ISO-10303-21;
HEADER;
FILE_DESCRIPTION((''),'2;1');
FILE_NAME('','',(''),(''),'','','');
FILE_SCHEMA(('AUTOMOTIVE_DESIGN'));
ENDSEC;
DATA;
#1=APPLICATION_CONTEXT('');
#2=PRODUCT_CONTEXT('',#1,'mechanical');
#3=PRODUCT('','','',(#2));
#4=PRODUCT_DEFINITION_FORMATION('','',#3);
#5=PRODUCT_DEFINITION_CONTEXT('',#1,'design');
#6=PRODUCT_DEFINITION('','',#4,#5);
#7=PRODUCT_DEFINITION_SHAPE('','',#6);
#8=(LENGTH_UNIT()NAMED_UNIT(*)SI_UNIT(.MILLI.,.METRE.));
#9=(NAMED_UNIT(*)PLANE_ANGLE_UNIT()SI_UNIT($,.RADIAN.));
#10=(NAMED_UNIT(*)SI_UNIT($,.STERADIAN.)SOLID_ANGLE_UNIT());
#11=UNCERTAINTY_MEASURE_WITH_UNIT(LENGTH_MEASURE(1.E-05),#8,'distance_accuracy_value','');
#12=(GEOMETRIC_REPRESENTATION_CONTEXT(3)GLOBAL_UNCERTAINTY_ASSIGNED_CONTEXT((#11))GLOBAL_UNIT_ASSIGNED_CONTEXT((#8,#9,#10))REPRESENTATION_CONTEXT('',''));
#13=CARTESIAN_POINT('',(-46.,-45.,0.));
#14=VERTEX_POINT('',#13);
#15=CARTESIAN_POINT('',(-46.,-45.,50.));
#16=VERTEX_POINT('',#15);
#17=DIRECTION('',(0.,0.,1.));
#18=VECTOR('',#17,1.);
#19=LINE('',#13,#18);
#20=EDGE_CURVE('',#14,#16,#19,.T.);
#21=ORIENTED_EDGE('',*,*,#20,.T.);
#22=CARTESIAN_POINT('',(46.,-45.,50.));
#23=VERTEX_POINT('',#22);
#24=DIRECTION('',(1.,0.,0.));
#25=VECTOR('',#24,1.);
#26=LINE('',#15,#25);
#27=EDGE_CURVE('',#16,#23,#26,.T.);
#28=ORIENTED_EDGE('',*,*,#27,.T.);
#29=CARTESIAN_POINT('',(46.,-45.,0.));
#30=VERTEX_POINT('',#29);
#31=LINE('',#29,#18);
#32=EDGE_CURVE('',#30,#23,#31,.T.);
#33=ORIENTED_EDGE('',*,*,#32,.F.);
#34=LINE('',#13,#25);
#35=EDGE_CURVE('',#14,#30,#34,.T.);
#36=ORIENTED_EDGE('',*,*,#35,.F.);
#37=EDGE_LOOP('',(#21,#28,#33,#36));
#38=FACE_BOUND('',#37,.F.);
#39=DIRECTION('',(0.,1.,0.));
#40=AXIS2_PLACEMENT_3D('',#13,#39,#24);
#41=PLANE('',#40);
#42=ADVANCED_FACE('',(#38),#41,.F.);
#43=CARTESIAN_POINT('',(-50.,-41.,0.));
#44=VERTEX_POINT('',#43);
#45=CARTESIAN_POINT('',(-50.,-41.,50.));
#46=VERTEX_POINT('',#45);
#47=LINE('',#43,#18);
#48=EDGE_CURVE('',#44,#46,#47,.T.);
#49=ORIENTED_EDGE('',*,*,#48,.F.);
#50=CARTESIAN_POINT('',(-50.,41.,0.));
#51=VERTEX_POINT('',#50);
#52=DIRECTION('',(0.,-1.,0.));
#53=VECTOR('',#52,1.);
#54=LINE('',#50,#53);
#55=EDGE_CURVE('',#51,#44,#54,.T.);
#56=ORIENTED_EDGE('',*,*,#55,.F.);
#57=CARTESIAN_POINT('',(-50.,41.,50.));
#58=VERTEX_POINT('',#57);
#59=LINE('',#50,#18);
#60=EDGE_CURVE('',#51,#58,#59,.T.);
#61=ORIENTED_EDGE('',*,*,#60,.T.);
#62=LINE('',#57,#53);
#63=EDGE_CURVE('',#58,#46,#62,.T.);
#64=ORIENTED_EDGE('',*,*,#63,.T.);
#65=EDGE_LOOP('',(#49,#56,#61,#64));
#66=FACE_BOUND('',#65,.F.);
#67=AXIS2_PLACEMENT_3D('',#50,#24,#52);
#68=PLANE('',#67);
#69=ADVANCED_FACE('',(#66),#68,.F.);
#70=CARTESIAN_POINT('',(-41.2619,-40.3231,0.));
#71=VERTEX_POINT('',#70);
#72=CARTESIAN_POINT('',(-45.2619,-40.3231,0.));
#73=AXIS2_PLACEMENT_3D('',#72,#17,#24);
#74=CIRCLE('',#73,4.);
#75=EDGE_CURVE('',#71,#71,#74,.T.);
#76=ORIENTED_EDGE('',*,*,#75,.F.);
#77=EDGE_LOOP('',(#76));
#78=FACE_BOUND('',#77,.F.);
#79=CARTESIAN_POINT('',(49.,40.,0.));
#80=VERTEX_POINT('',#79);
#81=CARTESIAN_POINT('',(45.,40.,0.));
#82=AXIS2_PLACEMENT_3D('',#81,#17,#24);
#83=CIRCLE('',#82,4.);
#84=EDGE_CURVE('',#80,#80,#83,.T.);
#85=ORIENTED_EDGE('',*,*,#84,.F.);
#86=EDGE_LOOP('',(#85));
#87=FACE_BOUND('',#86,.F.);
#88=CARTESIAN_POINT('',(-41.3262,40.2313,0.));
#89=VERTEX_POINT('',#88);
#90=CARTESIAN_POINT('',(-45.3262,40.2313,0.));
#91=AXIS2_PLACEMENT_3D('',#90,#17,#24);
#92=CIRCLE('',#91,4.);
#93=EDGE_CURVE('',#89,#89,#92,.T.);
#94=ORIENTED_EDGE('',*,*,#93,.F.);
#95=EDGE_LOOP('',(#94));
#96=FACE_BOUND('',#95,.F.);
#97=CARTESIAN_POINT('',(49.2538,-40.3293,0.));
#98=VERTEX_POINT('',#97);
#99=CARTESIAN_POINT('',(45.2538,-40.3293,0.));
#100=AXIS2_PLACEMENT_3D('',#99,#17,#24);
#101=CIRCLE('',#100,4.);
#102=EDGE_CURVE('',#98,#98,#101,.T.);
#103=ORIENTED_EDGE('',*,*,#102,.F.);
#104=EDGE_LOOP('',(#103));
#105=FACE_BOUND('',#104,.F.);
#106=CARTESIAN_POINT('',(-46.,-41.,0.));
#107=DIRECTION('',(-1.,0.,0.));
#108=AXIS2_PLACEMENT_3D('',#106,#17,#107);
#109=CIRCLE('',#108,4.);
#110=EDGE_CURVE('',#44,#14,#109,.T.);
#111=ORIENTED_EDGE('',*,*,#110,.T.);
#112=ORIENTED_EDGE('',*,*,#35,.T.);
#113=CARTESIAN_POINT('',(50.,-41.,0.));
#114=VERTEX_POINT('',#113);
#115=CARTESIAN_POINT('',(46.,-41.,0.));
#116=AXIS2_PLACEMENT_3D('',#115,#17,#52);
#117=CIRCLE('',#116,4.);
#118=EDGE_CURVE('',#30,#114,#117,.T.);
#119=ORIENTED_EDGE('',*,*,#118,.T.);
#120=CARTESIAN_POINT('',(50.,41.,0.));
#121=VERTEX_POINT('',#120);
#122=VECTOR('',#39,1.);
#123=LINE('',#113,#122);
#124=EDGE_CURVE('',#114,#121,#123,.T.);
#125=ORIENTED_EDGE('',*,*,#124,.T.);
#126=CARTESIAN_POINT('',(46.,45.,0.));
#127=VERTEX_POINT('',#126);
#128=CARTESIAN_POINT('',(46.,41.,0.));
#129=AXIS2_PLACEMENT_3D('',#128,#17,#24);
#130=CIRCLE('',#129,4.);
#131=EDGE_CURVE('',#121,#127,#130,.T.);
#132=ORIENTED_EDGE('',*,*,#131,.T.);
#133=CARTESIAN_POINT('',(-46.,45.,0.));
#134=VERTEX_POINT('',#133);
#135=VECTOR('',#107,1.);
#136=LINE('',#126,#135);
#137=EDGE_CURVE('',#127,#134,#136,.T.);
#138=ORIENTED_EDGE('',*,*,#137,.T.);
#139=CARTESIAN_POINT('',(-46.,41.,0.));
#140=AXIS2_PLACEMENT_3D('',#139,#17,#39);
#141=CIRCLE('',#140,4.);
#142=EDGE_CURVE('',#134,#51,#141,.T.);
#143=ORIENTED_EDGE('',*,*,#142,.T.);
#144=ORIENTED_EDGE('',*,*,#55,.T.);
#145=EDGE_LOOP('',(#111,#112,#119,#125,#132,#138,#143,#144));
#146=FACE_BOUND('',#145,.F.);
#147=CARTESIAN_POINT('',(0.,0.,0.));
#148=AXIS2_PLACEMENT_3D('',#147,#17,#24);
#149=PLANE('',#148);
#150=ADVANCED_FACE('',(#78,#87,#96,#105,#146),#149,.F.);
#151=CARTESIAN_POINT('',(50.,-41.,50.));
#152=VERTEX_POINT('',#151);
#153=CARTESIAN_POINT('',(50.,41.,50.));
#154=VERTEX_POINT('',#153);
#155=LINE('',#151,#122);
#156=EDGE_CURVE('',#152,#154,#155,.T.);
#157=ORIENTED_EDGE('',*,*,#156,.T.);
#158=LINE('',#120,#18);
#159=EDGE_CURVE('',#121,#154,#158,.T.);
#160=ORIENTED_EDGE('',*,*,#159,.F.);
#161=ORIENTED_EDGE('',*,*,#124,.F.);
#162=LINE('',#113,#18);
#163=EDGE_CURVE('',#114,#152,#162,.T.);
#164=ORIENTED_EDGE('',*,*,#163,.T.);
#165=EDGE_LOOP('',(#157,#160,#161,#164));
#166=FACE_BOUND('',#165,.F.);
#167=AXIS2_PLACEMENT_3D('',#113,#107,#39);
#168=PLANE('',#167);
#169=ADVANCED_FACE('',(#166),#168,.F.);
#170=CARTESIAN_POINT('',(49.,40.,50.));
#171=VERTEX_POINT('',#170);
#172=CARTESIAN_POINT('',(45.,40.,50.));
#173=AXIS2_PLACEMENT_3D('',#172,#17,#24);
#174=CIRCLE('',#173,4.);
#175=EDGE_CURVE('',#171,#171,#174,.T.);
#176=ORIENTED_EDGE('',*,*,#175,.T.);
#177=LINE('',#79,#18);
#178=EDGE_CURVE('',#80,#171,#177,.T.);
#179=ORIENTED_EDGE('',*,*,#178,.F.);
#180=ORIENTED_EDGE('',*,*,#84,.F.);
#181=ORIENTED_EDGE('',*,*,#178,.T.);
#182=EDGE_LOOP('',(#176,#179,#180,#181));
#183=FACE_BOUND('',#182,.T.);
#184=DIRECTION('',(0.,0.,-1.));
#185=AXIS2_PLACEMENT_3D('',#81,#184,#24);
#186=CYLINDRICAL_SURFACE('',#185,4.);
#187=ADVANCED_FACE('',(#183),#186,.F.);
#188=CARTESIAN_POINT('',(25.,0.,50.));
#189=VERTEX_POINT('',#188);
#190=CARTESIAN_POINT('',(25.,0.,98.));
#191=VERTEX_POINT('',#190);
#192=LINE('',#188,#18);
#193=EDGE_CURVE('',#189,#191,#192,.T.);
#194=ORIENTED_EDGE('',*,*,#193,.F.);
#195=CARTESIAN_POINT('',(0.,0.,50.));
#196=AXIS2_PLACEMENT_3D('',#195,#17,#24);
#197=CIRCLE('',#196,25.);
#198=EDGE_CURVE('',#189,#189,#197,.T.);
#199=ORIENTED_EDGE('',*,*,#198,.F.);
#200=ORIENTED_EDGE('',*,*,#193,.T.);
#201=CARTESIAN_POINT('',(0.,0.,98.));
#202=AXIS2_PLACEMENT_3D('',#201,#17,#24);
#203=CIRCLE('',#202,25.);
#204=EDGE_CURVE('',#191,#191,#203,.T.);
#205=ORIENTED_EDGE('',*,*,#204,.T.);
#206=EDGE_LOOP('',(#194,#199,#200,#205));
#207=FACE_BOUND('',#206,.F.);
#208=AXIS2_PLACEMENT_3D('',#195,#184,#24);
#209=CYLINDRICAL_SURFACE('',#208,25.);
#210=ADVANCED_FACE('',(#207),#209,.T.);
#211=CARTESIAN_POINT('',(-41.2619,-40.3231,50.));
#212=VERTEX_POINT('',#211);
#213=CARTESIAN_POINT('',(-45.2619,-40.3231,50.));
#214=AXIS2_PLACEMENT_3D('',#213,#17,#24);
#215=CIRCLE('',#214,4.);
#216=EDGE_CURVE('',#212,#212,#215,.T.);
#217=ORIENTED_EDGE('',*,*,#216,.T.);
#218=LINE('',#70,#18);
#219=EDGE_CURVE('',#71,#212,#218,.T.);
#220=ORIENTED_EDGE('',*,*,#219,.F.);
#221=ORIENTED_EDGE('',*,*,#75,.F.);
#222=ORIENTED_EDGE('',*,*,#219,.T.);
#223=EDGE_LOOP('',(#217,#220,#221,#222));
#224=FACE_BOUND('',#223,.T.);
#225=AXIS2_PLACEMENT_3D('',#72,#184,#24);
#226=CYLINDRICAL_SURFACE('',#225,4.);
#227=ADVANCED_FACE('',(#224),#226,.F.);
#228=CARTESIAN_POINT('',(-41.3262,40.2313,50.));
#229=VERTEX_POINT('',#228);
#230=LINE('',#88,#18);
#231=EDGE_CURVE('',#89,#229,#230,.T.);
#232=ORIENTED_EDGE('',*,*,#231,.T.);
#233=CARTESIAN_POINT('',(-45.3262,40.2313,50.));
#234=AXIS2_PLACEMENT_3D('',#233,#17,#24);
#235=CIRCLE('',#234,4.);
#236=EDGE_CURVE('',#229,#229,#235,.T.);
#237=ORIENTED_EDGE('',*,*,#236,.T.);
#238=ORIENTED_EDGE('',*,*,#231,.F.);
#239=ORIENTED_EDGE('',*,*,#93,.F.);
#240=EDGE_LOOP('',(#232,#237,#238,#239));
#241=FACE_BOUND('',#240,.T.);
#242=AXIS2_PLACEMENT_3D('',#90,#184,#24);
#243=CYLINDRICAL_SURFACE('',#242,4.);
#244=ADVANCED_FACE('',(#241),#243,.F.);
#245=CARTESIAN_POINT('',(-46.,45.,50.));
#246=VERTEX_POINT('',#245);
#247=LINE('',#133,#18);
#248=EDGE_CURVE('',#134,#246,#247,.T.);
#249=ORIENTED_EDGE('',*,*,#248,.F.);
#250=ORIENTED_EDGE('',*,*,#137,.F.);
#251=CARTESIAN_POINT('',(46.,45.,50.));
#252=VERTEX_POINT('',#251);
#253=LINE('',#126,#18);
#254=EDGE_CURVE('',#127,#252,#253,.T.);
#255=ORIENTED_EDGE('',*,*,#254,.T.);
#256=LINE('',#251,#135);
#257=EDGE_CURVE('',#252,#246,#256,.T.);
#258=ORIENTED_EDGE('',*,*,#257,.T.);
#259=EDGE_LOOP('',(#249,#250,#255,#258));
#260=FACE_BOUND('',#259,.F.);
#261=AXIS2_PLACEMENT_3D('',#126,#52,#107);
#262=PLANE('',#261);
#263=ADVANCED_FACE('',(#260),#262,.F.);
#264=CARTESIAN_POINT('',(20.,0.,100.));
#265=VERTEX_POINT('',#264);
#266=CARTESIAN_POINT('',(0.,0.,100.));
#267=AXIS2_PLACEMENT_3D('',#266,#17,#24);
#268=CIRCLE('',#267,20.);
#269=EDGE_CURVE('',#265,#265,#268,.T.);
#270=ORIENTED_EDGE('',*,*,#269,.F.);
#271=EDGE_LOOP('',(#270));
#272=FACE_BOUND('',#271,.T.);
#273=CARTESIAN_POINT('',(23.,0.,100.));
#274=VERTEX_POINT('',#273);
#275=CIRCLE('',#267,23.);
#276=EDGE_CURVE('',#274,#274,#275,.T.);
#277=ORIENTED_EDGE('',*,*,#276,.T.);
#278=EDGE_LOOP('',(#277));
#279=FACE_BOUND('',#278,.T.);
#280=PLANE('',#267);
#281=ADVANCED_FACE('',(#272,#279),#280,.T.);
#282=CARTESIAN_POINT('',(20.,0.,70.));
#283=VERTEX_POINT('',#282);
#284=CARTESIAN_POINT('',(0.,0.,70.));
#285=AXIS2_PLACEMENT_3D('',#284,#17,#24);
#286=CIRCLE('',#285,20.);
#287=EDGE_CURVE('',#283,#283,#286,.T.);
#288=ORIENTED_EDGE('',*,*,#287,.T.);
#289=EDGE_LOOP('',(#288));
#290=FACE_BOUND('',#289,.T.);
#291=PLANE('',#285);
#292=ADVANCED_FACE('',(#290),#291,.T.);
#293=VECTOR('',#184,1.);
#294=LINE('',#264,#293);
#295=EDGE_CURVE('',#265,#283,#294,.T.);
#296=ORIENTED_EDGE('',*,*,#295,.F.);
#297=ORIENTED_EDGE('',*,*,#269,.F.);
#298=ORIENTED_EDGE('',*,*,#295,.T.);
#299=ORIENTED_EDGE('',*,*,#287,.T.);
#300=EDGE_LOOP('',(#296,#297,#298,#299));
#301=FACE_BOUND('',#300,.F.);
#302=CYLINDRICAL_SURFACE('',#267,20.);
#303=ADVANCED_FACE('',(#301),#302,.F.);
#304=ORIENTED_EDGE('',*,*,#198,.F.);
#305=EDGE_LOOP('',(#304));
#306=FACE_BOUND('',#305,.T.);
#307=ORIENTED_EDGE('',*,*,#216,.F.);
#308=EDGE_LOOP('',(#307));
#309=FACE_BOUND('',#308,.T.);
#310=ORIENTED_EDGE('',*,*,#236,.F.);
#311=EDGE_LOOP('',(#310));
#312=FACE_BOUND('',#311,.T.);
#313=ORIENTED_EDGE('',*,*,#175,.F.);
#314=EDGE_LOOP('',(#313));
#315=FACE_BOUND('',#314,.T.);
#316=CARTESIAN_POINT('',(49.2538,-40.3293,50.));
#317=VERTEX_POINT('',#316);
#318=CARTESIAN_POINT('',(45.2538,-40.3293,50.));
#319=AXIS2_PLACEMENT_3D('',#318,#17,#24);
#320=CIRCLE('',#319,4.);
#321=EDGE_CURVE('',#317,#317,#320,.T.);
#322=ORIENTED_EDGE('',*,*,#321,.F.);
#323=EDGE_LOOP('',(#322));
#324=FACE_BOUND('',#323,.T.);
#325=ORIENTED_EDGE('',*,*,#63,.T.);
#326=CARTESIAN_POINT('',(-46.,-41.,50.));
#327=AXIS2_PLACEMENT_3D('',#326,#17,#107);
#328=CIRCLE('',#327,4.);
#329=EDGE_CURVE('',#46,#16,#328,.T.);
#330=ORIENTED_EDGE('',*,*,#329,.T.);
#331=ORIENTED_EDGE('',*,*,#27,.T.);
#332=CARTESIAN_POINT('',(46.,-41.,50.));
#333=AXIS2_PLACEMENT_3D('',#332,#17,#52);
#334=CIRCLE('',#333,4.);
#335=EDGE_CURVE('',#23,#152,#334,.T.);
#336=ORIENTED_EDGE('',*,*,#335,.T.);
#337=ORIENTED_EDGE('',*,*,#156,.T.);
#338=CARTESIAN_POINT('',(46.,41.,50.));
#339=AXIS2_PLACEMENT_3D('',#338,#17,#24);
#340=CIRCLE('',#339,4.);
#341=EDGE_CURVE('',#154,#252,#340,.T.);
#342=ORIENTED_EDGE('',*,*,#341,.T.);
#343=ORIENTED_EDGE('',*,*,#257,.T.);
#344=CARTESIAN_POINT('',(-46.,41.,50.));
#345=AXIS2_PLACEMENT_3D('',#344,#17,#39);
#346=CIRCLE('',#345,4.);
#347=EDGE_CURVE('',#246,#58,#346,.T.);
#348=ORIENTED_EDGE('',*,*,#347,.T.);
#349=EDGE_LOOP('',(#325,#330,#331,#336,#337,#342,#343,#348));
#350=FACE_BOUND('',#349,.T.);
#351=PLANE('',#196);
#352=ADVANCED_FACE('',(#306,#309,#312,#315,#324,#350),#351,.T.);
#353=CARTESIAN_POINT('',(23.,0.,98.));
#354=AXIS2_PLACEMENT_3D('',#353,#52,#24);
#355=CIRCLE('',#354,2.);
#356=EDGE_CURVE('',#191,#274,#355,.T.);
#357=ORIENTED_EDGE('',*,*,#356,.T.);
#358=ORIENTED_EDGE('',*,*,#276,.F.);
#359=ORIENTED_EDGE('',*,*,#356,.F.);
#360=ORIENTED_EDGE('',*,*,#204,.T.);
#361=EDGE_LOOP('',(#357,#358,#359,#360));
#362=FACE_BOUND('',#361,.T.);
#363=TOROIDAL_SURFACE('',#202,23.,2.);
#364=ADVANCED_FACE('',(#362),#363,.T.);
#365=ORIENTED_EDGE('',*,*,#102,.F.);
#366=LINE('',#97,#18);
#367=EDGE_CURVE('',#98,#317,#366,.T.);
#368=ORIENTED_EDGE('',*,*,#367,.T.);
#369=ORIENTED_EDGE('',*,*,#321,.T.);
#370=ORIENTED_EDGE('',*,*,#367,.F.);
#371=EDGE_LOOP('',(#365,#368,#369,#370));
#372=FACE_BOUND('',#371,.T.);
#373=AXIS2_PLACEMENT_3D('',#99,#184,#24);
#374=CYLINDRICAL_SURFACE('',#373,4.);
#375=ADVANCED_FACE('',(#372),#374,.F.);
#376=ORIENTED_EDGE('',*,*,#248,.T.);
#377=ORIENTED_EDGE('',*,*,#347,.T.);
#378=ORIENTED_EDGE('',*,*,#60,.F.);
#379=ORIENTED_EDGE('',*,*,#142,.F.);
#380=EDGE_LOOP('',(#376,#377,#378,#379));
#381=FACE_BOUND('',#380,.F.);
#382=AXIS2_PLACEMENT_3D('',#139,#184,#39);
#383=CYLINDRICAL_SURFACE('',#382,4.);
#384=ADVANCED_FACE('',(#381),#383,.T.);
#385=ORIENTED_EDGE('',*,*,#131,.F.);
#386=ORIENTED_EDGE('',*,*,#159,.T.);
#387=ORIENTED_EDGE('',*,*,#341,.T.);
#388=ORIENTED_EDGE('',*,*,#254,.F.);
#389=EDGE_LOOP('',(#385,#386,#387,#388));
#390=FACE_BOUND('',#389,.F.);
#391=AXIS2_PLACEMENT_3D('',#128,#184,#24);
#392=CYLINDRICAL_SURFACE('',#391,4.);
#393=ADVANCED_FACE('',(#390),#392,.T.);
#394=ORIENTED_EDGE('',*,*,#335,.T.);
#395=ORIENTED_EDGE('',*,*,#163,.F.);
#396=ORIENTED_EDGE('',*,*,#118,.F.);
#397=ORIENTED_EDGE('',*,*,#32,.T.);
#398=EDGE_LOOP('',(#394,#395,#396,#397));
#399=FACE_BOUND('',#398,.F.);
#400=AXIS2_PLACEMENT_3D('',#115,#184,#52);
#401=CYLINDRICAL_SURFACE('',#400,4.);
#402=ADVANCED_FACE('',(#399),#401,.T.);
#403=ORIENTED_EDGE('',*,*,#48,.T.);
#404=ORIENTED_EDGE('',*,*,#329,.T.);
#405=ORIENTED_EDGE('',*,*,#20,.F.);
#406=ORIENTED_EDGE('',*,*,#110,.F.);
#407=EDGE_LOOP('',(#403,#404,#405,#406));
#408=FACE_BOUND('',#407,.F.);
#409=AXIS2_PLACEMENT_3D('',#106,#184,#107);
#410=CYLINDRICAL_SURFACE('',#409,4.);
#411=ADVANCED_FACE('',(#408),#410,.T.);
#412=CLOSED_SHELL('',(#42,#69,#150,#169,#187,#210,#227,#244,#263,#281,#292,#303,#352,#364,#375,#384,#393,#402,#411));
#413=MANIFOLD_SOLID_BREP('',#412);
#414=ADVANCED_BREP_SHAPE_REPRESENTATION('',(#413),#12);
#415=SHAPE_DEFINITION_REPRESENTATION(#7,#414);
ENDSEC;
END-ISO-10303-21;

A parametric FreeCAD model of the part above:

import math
import FreeCAD as App
import Part
import Sketcher

V = App.Vector


def edges_at(feature, points):
    """Names of the edges that pass closest to the given points."""
    edges = feature.Shape.Edges
    near = lambda p: min(range(len(edges)), key=lambda i: edges[i].distToShape(Part.Vertex(*p))[0])
    return sorted({f"Edge{near(p) + 1}" for p in points})

doc = App.newDocument("Part")
body = doc.addObject("PartDesign::Body", "Body")

sketch1 = doc.addObject("Sketcher::SketchObject", "Sketch")
body.addObject(sketch1)
sketch1.AttachmentSupport = (doc.XY_Plane, [""])
sketch1.MapMode = "FlatFace"
sketch1.addGeometry(Part.ArcOfCircle(Part.Circle(V(-46, -41, 0), V(0, 0, 1), 4), math.radians(180), math.radians(270)), False)
sketch1.addGeometry(Part.LineSegment(V(-46, -45, 0), V(46, -45, 0)), False)
sketch1.addGeometry(Part.ArcOfCircle(Part.Circle(V(46, -41, 0), V(0, 0, 1), 4), math.radians(-90), math.radians(0)), False)
sketch1.addGeometry(Part.LineSegment(V(50, -41, 0), V(50, 41, 0)), False)
sketch1.addGeometry(Part.ArcOfCircle(Part.Circle(V(46, 41, 0), V(0, 0, 1), 4), math.radians(0), math.radians(90)), False)
sketch1.addGeometry(Part.LineSegment(V(46, 45, 0), V(-46, 45, 0)), False)
sketch1.addGeometry(Part.ArcOfCircle(Part.Circle(V(-46, 41, 0), V(0, 0, 1), 4), math.radians(90), math.radians(180)), False)
sketch1.addGeometry(Part.LineSegment(V(-50, 41, 0), V(-50, -41, 0)), False)
sketch1.addGeometry(Part.Circle(V(-45.2619, -40.3231, 0), V(0, 0, 1), 4), False)
sketch1.addGeometry(Part.Circle(V(45.2538, -40.3293, 0), V(0, 0, 1), 4), False)
sketch1.addGeometry(Part.Circle(V(-45.3262, 40.2313, 0), V(0, 0, 1), 4), False)
sketch1.addGeometry(Part.Circle(V(45, 40, 0), V(0, 0, 1), 4), False)
sketch1.addConstraint(Sketcher.Constraint("Tangent", 0, 2, 1, 1))
sketch1.addConstraint(Sketcher.Constraint("Tangent", 1, 2, 2, 1))
sketch1.addConstraint(Sketcher.Constraint("Tangent", 2, 2, 3, 1))
sketch1.addConstraint(Sketcher.Constraint("Tangent", 3, 2, 4, 1))
sketch1.addConstraint(Sketcher.Constraint("Tangent", 4, 2, 5, 1))
sketch1.addConstraint(Sketcher.Constraint("Tangent", 5, 2, 6, 1))
sketch1.addConstraint(Sketcher.Constraint("Tangent", 6, 2, 7, 1))
sketch1.addConstraint(Sketcher.Constraint("Tangent", 7, 2, 0, 1))
sketch1.addConstraint(Sketcher.Constraint("Horizontal", 1))
sketch1.addConstraint(Sketcher.Constraint("Vertical", 3))
sketch1.addConstraint(Sketcher.Constraint("Horizontal", 5))
sketch1.addConstraint(Sketcher.Constraint("Vertical", 7))
sketch1.addConstraint(Sketcher.Constraint("Equal", 0, 2))
sketch1.addConstraint(Sketcher.Constraint("Equal", 2, 4))
sketch1.addConstraint(Sketcher.Constraint("Equal", 4, 6))
sketch1.addConstraint(Sketcher.Constraint("Equal", 6, 8))
sketch1.addConstraint(Sketcher.Constraint("Equal", 8, 9))
sketch1.addConstraint(Sketcher.Constraint("Equal", 9, 10))
sketch1.addConstraint(Sketcher.Constraint("Equal", 10, 11))
sketch1.addConstraint(Sketcher.Constraint("Symmetric", 0, 3, 4, 3, -1, 1))
sketch1.addConstraint(Sketcher.Constraint("Diameter", 8, 8.0))
sketch1.addConstraint(Sketcher.Constraint("DistanceX", 11, 3, 4, 3, 1.0))
sketch1.addConstraint(Sketcher.Constraint("DistanceY", 11, 3, 4, 3, 1.0))
sketch1.addConstraint(Sketcher.Constraint("DistanceY", 0, 2, 5, 2, 90.0))
sketch1.addConstraint(Sketcher.Constraint("DistanceX", 1, 1, 1, 2, 92.0))
sketch1.addConstraint(Sketcher.Constraint("DistanceX", 10, 3, 9, 3, 90.58))
sketch1.addConstraint(Sketcher.Constraint("DistanceX", 8, 3, -1, 1, 45.262))
sketch1.addConstraint(Sketcher.Constraint("DistanceY", 8, 3, -1, 1, 40.323))
sketch1.addConstraint(Sketcher.Constraint("DistanceX", -1, 1, 9, 3, 45.2538))
sketch1.addConstraint(Sketcher.Constraint("DistanceY", 9, 3, -1, 1, 40.3293))
sketch1.addConstraint(Sketcher.Constraint("DistanceY", -1, 1, 10, 3, 40.2313))
pad1 = doc.addObject("PartDesign::Pad", "Pad")
body.addObject(pad1)
pad1.Profile = sketch1
pad1.Length = 50

sketch2 = doc.addObject("Sketcher::SketchObject", "Sketch001")
body.addObject(sketch2)
sketch2.AttachmentSupport = (doc.XY_Plane, [""])
sketch2.MapMode = "FlatFace"
sketch2.AttachmentOffset = App.Placement(V(0, 0, 50), App.Rotation())
sketch2.addGeometry(Part.Circle(V(0, 0, 0), V(0, 0, 1), 25), False)
sketch2.addConstraint(Sketcher.Constraint("Coincident", 0, 3, -1, 1))
sketch2.addConstraint(Sketcher.Constraint("Diameter", 0, 50.0))
pad2 = doc.addObject("PartDesign::Pad", "Pad001")
body.addObject(pad2)
pad2.Profile = sketch2
pad2.Length = 50

sketch3 = doc.addObject("Sketcher::SketchObject", "Sketch002")
body.addObject(sketch3)
sketch3.AttachmentSupport = (doc.XY_Plane, [""])
sketch3.MapMode = "FlatFace"
sketch3.AttachmentOffset = App.Placement(V(0, 0, 100), App.Rotation())
sketch3.addGeometry(Part.Circle(V(0, 0, 0), V(0, 0, 1), 20), False)
sketch3.addConstraint(Sketcher.Constraint("Coincident", 0, 3, -1, 1))
sketch3.addConstraint(Sketcher.Constraint("Diameter", 0, 40.0))
pocket1 = doc.addObject("PartDesign::Pocket", "Pocket")
body.addObject(pocket1)
pocket1.Profile = sketch3
pocket1.Length = 30
doc.recompute()

fillet = doc.addObject("PartDesign::Fillet", "Fillet")
body.addObject(fillet)
fillet.Base = (pocket1, edges_at(pocket1, [(-25, 0, 100)]))
fillet.Radius = 2

doc.recompute()
